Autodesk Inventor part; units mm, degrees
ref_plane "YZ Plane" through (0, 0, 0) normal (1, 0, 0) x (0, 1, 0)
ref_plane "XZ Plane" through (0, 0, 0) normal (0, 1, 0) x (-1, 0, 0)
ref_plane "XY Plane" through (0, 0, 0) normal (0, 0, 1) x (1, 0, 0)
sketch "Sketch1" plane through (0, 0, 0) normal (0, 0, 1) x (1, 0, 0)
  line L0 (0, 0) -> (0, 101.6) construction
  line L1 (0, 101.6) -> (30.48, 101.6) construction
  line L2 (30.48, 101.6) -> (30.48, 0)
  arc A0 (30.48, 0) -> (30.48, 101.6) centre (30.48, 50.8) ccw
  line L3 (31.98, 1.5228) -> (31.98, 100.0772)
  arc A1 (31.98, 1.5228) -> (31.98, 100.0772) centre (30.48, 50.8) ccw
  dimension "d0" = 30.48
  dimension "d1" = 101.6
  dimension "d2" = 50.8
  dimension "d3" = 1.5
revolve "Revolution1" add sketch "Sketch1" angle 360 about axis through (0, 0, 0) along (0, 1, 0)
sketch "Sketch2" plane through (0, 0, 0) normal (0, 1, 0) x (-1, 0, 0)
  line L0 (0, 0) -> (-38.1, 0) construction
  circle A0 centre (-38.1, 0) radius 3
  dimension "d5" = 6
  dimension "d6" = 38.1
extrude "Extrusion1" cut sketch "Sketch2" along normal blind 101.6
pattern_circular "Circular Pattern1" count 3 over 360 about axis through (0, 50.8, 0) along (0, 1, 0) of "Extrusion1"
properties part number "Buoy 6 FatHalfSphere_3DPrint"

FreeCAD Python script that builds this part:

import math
import FreeCAD as App
import Part
import Sketcher

V = App.Vector
Q = App.Units.Quantity

doc = App.newDocument("Part")
body = doc.addObject("PartDesign::Body", "Body")

# Sketch on XY plane
sketch1 = doc.addObject("Sketcher::SketchObject", "Sketch")
body.addObject(sketch1)
sketch1.AttachmentSupport = (doc.XY_Plane, [""])
sketch1.MapMode = "FlatFace"
sketch1.addGeometry([
    Part.ArcOfCircle(Part.Circle(V(30.48, 50.8, 0), V(0, 0, 1), 50.8), math.radians(-90), math.radians(90)),
    Part.LineSegment(V(30.48, 101.6, 0), V(30.48, 0, 0)),
    Part.ArcOfCircle(Part.Circle(V(30.48, 50.8, 0), V(0, 0, 1), 49.300025), math.radians(-88.256452), math.radians(88.256452)),
    Part.LineSegment(V(31.98, 1.5228, 0), V(31.98, 100.0772, 0)),
], False)
sketch1.addConstraint([
    Sketcher.Constraint("Coincident", 0, 1, 1, 2),
    Sketcher.Constraint("Coincident", 1, 1, 0, 2),
    Sketcher.Constraint("Coincident", 2, 1, 3, 1),
    Sketcher.Constraint("Coincident", 3, 2, 2, 2),
    Sketcher.Constraint("Vertical", 1),
    Sketcher.Constraint("Vertical", 3),
    Sketcher.Constraint("Coincident", 2, 3, 0, 3),
    Sketcher.Constraint("PointOnObject", 0, 1, -1),
    Sketcher.Constraint("Vertical", 2, 3, 0, 1),
    Sketcher.Constraint("Radius", 0, Q("50.8 mm")),
    Sketcher.Constraint("Radius", 2, Q("49.3 mm")),
    Sketcher.Constraint("DistanceX", 0, 1, 2, 1, Q("1.5 mm")),
    Sketcher.Constraint("DistanceX", -1, 1, 0, 3, Q("30.48 mm")),
])
revolution = doc.addObject("PartDesign::Revolution", "Revolution")
body.addObject(revolution)
revolution.Profile = sketch1
revolution.ReferenceAxis = (sketch1, ["V_Axis"])
revolution.Angle = 360

# Sketch on XZ plane
sketch2 = doc.addObject("Sketcher::SketchObject", "Sketch001")
body.addObject(sketch2)
sketch2.AttachmentSupport = (doc.XZ_Plane, [""])
sketch2.MapMode = "FlatFace"
sketch2.addGeometry(Part.Circle(V(38.1, 0, 0), V(0, 0, 1), 3), False)
sketch2.addConstraint([
    Sketcher.Constraint("PointOnObject", 0, 3, -1),
    Sketcher.Constraint("Diameter", 0, Q("6 mm")),
    Sketcher.Constraint("DistanceX", -1, 1, 0, 3, Q("38.1 mm")),
])
pocket1 = doc.addObject("PartDesign::Pocket", "Pocket")
body.addObject(pocket1)
pocket1.Profile = sketch2
pocket1.Length = 101.6
doc.recompute()

polarpattern = doc.addObject("PartDesign::PolarPattern", "PolarPattern")
body.addObject(polarpattern)
polarpattern.Originals = [pocket1]
polarpattern.Axis = (doc.Y_Axis, [""])
polarpattern.Angle = 360
polarpattern.Occurrences = 3
body.Tip = polarpattern

doc.recompute()
